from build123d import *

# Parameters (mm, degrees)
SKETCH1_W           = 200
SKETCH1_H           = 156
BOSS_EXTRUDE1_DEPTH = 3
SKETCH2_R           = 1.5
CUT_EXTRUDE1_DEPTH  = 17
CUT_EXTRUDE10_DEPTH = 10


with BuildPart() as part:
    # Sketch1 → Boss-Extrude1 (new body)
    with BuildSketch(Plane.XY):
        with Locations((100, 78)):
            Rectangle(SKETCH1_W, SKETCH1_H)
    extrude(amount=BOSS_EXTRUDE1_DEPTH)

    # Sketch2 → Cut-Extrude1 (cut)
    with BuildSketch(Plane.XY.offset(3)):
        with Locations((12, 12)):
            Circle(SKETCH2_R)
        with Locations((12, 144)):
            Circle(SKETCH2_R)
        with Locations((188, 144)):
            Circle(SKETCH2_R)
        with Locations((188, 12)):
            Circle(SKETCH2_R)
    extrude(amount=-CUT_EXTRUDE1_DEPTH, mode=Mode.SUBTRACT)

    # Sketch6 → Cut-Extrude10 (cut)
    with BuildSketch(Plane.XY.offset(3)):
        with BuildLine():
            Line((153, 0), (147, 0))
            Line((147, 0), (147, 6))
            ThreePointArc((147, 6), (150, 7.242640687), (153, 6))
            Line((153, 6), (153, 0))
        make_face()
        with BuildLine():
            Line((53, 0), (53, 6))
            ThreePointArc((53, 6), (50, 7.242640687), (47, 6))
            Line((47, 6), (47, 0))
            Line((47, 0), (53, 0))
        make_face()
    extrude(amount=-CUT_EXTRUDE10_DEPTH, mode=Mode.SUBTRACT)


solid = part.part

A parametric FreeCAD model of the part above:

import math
import FreeCAD as App
import Part
import Sketcher
Q = App.Units.Quantity

doc = App.newDocument("Part")
params = doc.addObject("Spreadsheet::Sheet", "Params")
for row, (alias, value) in enumerate([
    ("sketch1_width", "200 mm"),
    ("sketch1_height", "156 mm"),
    ("pad1_length", "3 mm"),
    ("sketch2_diameter", "3 mm"),
    ("pocket1_length", "17 mm"),
    ("sketch3_width", "6 mm"),
    ("pocket2_length", "10 mm"),
], start=1):
    params.set(f"A{row}", alias)
    params.set(f"B{row}", "=" + value)
    params.setAlias(f"B{row}", alias)

body = doc.addObject("PartDesign::Body", "Body")

# Sketch on XY plane
sketch1 = body.newObject("Sketcher::SketchObject", "Sketch")
sketch1.AttachmentSupport = (doc.getObject("XY_Plane"), [""])
sketch1.MapMode = "FlatFace"
sketch1.addGeometry(Part.LineSegment(App.Vector(0, 156, 0), App.Vector(0, 0, 0)), False)
sketch1.addGeometry(Part.LineSegment(App.Vector(0, 0, 0), App.Vector(200, 0, 0)), False)
sketch1.addGeometry(Part.LineSegment(App.Vector(200, 0, 0), App.Vector(200, 156, 0)), False)
sketch1.addGeometry(Part.LineSegment(App.Vector(200, 156, 0), App.Vector(0, 156, 0)), False)
sketch1.addConstraint(Sketcher.Constraint("Coincident", 0, 2, 1, 1))
sketch1.addConstraint(Sketcher.Constraint("Coincident", 1, 2, 2, 1))
sketch1.addConstraint(Sketcher.Constraint("Coincident", 2, 2, 3, 1))
sketch1.addConstraint(Sketcher.Constraint("Coincident", 3, 2, 0, 1))
sketch1.addConstraint(Sketcher.Constraint("Vertical", 0))
sketch1.addConstraint(Sketcher.Constraint("Horizontal", 1))
sketch1.addConstraint(Sketcher.Constraint("Vertical", 2))
sketch1.addConstraint(Sketcher.Constraint("Horizontal", 3))
sketch1.addConstraint(Sketcher.Constraint("Coincident", 0, 2, -1, 1))
sketch1.addConstraint(Sketcher.Constraint("DistanceX", 1, 1, 1, 2, Q("200 mm")))
sketch1.addConstraint(Sketcher.Constraint("DistanceY", 0, 2, 0, 1, Q("156 mm")))
sketch1.setExpression("Constraints[9]", "Params.sketch1_width")
sketch1.setExpression("Constraints[10]", "Params.sketch1_height")
pad1 = body.newObject("PartDesign::Pad", "Pad")
pad1.Profile = sketch1
pad1.setExpression("Length", "Params.pad1_length")

# Sketch on XY plane
sketch2 = body.newObject("Sketcher::SketchObject", "Sketch001")
sketch2.AttachmentSupport = (doc.getObject("XY_Plane"), [""])
sketch2.MapMode = "FlatFace"
sketch2.AttachmentOffset = App.Placement(App.Vector(0, 0, 3), App.Rotation())
sketch2.addGeometry(Part.Circle(App.Vector(12, 12, 0), App.Vector(0, 0, 1), 1.5), False)
sketch2.addGeometry(Part.Circle(App.Vector(12, 144, 0), App.Vector(0, 0, 1), 1.5), False)
sketch2.addGeometry(Part.Circle(App.Vector(188, 144, 0), App.Vector(0, 0, 1), 1.5), False)
sketch2.addGeometry(Part.Circle(App.Vector(188, 12, 0), App.Vector(0, 0, 1), 1.5), False)
sketch2.addConstraint(Sketcher.Constraint("Equal", 0, 1))
sketch2.addConstraint(Sketcher.Constraint("Equal", 1, 2))
sketch2.addConstraint(Sketcher.Constraint("Equal", 2, 3))
sketch2.addConstraint(Sketcher.Constraint("Horizontal", 1, 3, 2, 3))
sketch2.addConstraint(Sketcher.Constraint("Horizontal", 0, 3, 3, 3))
sketch2.addConstraint(Sketcher.Constraint("Vertical", 0, 3, 1, 3))
sketch2.addConstraint(Sketcher.Constraint("Vertical", 2, 3, 3, 3))
sketch2.addConstraint(Sketcher.Constraint("Diameter", 0, Q("3 mm")))
sketch2.addConstraint(Sketcher.Constraint("DistanceX", -1, 1, 0, 3, Q("12 mm")))
sketch2.addConstraint(Sketcher.Constraint("DistanceY", -1, 1, 0, 3, Q("12 mm")))
sketch2.addConstraint(Sketcher.Constraint("DistanceY", -1, 1, 1, 3, Q("144 mm")))
sketch2.addConstraint(Sketcher.Constraint("DistanceX", -1, 1, 2, 3, Q("188 mm")))
sketch2.setExpression("Constraints[7]", "Params.sketch2_diameter")
pocket1 = body.newObject("PartDesign::Pocket", "Pocket")
pocket1.Profile = sketch2
pocket1.setExpression("Length", "Params.pocket1_length")

# Sketch on XY plane
sketch3 = body.newObject("Sketcher::SketchObject", "Sketch002")
sketch3.AttachmentSupport = (doc.getObject("XY_Plane"), [""])
sketch3.MapMode = "FlatFace"
sketch3.AttachmentOffset = App.Placement(App.Vector(0, 0, 3), App.Rotation())
sketch3.addGeometry(Part.LineSegment(App.Vector(147, 0, 0), App.Vector(153, 0, 0)), False)
sketch3.addGeometry(Part.LineSegment(App.Vector(153, 0, 0), App.Vector(153, 6, 0)), False)
sketch3.addGeometry(Part.ArcOfCircle(Part.Circle(App.Vector(150, 3, 0), App.Vector(0, 0, 1), 4.2), math.radians(45), math.radians(135)), False)
sketch3.addGeometry(Part.LineSegment(App.Vector(147, 6, 0), App.Vector(147, 0, 0)), False)
sketch3.addGeometry(Part.LineSegment(App.Vector(53, 0, 0), App.Vector(53, 6, 0)), False)
sketch3.addGeometry(Part.ArcOfCircle(Part.Circle(App.Vector(50, 3, 0), App.Vector(0, 0, 1), 4.2), math.radians(45), math.radians(135)), False)
sketch3.addGeometry(Part.LineSegment(App.Vector(47, 6, 0), App.Vector(47, 0, 0)), False)
sketch3.addGeometry(Part.LineSegment(App.Vector(47, 0, 0), App.Vector(53, 0, 0)), False)
sketch3.addConstraint(Sketcher.Constraint("Coincident", 0, 2, 1, 1))
sketch3.addConstraint(Sketcher.Constraint("Coincident", 1, 2, 2, 1))
sketch3.addConstraint(Sketcher.Constraint("Coincident", 2, 2, 3, 1))
sketch3.addConstraint(Sketcher.Constraint("Coincident", 3, 2, 0, 1))
sketch3.addConstraint(Sketcher.Constraint("Coincident", 4, 2, 5, 1))
sketch3.addConstraint(Sketcher.Constraint("Coincident", 5, 2, 6, 1))
sketch3.addConstraint(Sketcher.Constraint("Coincident", 6, 2, 7, 1))
sketch3.addConstraint(Sketcher.Constraint("Coincident", 7, 2, 4, 1))
sketch3.addConstraint(Sketcher.Constraint("Horizontal", 0))
sketch3.addConstraint(Sketcher.Constraint("Vertical", 1))
sketch3.addConstraint(Sketcher.Constraint("Vertical", 3))
sketch3.addConstraint(Sketcher.Constraint("Vertical", 4))
sketch3.addConstraint(Sketcher.Constraint("Vertical", 6))
sketch3.addConstraint(Sketcher.Constraint("Horizontal", 7))
sketch3.addConstraint(Sketcher.Constraint("Equal", 2, 5))
sketch3.addConstraint(Sketcher.Constraint("PointOnObject", 0, 2, -1))
sketch3.addConstraint(Sketcher.Constraint("PointOnObject", 6, 2, -1))
sketch3.addConstraint(Sketcher.Constraint("Horizontal", 2, 3, 5, 3))
sketch3.addConstraint(Sketcher.Constraint("Horizontal", 1, 2, 2, 2))
sketch3.addConstraint(Sketcher.Constraint("Horizontal", 2, 2, 4, 2))
sketch3.addConstraint(Sketcher.Constraint("Horizontal", 4, 2, 5, 2))
sketch3.addConstraint(Sketcher.Constraint("Equal", 7, 1))
sketch3.addConstraint(Sketcher.Constraint("DistanceX", 0, 1, 0, 2, Q("6 mm")))
sketch3.addConstraint(Sketcher.Constraint("DistanceX", -1, 1, 2, 3, Q("150 mm")))
sketch3.addConstraint(Sketcher.Constraint("DistanceY", -1, 1, 2, 3, Q("3 mm")))
sketch3.addConstraint(Sketcher.Constraint("DistanceX", -1, 1, 5, 3, Q("50 mm")))
sketch3.setExpression("Constraints[22]", "Params.sketch3_width")
pocket2 = body.newObject("PartDesign::Pocket", "Pocket001")
pocket2.Profile = sketch3
pocket2.setExpression("Length", "Params.pocket2_length")

doc.recompute()
